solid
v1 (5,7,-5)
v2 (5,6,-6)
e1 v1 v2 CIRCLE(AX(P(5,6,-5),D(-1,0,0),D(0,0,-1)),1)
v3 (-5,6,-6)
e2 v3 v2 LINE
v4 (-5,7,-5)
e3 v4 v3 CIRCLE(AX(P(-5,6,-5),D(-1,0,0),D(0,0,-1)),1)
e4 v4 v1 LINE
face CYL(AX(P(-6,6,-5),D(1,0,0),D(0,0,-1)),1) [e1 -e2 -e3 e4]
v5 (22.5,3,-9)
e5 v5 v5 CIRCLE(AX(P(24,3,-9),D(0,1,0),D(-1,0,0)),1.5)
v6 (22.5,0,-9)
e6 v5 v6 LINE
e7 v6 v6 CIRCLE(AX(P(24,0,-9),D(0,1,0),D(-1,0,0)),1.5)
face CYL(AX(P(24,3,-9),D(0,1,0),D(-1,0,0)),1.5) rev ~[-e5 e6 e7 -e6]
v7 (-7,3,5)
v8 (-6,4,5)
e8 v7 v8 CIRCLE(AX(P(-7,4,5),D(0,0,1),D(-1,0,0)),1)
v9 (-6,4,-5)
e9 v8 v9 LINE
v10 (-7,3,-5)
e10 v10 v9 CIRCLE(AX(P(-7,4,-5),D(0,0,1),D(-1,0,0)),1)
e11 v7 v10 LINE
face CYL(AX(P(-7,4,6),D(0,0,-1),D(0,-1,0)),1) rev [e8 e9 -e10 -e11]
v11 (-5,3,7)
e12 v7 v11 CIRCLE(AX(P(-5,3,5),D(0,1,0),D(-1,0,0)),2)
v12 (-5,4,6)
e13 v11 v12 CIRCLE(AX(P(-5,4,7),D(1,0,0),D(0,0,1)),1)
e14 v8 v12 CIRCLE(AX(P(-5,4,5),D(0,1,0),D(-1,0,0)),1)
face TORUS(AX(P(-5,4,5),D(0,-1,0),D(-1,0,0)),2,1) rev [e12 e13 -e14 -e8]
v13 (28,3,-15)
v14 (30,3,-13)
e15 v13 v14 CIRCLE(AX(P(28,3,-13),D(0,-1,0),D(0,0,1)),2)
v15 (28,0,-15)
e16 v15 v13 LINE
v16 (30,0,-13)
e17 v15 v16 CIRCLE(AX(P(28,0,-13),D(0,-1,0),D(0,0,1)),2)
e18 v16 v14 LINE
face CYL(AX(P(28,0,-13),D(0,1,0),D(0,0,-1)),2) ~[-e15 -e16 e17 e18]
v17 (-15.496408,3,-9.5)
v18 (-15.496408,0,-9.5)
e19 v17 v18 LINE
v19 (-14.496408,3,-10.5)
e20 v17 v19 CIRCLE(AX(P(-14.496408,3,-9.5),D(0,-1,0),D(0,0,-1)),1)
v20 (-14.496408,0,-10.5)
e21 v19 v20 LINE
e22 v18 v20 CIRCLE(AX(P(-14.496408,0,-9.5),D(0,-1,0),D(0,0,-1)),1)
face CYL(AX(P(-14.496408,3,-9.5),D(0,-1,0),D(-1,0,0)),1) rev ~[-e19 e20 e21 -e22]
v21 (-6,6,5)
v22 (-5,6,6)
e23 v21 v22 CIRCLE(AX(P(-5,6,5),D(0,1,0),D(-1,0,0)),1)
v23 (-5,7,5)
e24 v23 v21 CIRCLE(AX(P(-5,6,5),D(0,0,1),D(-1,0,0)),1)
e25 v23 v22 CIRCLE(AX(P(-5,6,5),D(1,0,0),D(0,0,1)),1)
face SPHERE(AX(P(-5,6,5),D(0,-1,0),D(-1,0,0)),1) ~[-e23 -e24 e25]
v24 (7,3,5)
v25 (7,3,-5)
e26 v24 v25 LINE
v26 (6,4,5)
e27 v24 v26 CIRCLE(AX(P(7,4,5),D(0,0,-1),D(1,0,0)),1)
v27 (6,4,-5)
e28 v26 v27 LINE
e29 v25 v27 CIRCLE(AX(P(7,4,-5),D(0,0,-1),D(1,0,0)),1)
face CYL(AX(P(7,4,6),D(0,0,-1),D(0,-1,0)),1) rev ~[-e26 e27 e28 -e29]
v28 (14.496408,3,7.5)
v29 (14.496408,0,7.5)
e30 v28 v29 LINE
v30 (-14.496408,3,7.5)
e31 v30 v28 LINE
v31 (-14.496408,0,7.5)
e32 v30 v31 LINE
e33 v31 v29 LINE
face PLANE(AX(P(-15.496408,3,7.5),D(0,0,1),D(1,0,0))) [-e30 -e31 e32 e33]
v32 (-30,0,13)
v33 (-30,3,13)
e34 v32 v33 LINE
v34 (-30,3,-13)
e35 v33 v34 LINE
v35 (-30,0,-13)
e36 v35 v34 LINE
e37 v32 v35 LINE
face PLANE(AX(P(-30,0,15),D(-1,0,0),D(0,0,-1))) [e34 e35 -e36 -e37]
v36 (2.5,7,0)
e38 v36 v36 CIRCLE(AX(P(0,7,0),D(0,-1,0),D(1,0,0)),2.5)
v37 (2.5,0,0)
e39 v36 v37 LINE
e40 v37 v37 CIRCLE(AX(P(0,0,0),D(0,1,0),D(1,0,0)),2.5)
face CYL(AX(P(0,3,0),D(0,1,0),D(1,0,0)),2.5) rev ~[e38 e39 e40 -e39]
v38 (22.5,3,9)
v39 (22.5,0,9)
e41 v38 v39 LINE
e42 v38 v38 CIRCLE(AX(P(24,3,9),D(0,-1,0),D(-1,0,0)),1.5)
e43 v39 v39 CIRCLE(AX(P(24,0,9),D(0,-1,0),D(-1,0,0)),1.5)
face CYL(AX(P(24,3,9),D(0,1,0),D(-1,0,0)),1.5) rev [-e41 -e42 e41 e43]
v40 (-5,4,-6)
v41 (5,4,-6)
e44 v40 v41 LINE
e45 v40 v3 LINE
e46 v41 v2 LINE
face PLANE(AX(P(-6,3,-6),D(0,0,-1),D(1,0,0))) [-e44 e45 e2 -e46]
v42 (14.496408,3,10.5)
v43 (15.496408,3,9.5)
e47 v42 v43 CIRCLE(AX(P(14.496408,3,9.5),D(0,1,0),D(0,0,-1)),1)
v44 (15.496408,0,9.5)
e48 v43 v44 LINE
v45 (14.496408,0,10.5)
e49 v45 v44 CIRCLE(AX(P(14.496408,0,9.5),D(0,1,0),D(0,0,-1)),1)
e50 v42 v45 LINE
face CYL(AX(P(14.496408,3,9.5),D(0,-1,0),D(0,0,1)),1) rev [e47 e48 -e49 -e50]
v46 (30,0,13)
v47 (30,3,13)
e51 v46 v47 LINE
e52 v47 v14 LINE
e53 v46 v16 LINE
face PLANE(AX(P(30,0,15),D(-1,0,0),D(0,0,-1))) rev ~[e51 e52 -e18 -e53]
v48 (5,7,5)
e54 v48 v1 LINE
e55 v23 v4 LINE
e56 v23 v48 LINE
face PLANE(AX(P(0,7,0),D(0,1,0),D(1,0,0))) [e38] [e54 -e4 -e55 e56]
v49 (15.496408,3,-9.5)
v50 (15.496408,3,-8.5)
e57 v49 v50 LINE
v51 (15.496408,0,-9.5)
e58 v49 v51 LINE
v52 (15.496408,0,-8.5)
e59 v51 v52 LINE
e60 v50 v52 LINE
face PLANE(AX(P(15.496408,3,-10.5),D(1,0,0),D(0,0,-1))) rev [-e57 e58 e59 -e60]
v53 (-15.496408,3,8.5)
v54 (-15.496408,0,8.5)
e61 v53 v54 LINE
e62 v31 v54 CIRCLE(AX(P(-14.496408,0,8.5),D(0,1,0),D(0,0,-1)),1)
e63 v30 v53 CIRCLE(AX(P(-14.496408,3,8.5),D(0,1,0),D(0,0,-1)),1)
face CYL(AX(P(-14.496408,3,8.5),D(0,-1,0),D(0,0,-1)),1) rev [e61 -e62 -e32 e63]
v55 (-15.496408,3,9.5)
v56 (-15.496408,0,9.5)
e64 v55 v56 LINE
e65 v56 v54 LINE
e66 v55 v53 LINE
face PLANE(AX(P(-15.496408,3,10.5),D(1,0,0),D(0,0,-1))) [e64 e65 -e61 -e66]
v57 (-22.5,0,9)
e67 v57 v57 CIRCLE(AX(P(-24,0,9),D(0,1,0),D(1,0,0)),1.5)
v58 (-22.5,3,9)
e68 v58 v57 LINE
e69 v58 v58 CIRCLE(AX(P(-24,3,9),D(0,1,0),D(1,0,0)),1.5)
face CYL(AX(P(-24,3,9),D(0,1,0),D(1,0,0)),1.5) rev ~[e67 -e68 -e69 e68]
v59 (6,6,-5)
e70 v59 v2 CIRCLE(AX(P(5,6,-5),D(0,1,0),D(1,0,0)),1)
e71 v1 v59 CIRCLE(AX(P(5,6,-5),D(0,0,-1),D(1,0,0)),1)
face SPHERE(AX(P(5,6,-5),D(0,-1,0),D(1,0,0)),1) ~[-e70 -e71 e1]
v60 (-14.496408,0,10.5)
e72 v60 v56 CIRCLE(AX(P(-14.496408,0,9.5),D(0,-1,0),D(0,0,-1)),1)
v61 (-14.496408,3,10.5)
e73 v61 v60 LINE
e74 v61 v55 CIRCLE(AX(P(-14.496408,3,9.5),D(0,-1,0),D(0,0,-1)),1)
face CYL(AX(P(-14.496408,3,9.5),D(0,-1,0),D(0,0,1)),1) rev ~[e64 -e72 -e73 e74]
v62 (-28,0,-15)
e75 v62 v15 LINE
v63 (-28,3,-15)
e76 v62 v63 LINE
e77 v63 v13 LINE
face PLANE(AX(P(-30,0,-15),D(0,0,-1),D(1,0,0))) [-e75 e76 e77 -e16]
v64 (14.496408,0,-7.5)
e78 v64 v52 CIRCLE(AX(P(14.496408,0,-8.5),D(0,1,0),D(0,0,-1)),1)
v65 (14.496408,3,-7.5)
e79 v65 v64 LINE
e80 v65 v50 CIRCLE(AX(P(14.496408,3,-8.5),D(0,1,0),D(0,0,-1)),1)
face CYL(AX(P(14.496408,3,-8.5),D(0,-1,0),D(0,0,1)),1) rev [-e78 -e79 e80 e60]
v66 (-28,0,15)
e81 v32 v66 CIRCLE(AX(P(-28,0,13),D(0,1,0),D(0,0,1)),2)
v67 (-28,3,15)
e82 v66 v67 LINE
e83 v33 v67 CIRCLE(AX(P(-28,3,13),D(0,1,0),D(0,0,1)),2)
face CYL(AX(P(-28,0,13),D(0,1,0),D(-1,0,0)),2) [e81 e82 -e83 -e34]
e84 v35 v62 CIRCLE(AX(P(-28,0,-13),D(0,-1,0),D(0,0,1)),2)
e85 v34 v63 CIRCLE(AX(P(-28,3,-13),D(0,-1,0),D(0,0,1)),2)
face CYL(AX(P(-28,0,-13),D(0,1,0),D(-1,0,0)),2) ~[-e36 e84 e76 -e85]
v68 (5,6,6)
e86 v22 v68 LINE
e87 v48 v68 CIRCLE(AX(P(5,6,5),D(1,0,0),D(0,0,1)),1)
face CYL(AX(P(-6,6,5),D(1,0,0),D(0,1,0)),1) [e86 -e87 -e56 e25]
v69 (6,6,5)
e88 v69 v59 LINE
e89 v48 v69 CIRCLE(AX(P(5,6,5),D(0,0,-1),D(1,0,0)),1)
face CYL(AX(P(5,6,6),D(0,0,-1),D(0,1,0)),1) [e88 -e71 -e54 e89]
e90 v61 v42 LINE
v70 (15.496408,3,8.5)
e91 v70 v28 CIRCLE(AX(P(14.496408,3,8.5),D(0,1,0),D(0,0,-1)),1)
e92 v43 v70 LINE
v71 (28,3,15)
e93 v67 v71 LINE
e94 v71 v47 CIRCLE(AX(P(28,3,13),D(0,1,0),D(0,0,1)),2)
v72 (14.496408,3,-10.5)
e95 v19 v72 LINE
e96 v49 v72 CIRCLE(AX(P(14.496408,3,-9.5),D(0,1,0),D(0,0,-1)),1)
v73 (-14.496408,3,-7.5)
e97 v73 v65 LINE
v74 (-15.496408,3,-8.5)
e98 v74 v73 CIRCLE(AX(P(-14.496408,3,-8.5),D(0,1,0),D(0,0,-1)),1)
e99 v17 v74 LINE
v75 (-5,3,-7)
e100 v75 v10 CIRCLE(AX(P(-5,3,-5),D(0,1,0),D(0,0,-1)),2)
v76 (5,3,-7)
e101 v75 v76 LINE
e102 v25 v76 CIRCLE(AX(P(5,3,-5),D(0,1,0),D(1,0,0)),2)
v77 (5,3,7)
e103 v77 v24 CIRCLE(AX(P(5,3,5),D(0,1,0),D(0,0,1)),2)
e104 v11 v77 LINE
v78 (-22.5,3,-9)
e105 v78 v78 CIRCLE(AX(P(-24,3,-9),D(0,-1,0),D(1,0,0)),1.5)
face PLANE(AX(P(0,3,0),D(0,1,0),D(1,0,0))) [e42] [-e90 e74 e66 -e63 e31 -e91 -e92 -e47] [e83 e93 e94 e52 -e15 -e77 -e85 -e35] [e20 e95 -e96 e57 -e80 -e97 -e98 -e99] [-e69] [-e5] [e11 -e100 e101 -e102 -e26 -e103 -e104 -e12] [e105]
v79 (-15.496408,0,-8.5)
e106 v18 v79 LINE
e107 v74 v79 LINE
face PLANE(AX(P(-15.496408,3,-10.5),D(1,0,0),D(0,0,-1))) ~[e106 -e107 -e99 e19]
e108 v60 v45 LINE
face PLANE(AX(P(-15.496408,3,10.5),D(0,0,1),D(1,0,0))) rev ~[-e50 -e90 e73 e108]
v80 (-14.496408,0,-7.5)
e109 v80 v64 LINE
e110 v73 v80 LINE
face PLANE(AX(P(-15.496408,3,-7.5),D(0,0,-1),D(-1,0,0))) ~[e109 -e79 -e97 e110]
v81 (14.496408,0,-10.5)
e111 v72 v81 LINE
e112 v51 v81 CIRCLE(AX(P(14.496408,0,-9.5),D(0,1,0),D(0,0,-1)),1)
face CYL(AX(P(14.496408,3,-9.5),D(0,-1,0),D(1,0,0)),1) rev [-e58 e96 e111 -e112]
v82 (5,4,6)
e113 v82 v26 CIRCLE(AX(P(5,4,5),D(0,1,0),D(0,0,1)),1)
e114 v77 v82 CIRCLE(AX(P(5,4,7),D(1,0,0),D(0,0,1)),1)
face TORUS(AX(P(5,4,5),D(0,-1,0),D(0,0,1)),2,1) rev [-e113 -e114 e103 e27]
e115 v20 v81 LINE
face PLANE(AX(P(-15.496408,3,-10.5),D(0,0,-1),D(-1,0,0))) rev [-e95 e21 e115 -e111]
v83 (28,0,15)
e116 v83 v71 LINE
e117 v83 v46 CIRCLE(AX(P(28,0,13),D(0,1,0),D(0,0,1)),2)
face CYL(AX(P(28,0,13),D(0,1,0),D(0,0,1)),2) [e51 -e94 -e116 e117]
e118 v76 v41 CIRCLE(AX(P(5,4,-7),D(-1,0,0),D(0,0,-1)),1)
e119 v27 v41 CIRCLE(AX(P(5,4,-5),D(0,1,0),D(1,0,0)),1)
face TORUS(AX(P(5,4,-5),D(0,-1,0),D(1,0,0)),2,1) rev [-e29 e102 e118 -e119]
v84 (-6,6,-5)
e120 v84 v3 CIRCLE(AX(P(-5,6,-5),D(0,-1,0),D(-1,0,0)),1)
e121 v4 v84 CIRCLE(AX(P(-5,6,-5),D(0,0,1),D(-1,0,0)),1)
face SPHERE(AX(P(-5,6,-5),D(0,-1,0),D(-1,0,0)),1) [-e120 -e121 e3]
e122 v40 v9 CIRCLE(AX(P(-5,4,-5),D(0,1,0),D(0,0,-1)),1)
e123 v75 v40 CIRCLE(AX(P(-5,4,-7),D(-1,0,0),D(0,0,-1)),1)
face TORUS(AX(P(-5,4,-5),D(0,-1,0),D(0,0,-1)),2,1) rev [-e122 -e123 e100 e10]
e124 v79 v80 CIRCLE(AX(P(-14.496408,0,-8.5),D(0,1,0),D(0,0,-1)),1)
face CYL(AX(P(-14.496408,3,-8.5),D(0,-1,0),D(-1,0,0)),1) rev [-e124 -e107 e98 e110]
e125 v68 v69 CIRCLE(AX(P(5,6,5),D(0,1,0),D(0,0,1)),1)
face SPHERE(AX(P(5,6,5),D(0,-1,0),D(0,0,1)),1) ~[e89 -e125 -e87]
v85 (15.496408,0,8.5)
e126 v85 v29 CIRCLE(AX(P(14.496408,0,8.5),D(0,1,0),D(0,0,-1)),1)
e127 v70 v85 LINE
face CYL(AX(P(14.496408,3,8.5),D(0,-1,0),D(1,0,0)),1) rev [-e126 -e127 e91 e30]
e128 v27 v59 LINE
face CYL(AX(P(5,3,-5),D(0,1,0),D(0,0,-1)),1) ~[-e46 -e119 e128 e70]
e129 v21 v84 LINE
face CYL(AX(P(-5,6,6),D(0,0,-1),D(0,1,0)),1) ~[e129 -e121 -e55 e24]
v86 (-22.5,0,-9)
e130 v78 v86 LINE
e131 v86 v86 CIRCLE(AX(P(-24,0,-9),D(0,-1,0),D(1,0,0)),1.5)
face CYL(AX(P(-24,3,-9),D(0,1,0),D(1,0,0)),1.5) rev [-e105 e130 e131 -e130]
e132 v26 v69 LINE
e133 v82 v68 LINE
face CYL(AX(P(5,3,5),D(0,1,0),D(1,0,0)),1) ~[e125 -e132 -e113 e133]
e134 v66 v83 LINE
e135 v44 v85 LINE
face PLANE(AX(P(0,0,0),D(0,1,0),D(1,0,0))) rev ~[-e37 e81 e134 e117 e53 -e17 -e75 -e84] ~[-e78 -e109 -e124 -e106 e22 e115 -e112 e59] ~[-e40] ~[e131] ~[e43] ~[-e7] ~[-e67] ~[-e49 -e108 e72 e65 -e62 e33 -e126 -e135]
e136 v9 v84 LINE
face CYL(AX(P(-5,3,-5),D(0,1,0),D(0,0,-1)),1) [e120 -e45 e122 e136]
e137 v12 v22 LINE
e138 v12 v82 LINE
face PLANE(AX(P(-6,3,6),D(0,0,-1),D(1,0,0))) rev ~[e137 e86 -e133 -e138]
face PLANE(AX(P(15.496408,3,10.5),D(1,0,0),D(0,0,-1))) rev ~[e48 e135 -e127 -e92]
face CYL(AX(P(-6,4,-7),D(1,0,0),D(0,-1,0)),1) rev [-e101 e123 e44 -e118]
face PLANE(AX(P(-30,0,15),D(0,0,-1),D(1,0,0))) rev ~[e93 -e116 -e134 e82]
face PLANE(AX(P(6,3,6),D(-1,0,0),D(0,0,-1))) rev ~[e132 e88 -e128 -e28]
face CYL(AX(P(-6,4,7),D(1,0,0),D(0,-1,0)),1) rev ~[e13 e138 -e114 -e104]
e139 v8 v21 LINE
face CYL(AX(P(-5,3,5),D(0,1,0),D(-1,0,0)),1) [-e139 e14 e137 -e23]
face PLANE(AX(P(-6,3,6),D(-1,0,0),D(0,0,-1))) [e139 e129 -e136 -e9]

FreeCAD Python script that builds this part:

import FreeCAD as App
import Part
import Sketcher

V = App.Vector


def edges_at(feature, points):
    """Names of the edges that pass closest to the given points."""
    edges = feature.Shape.Edges
    near = lambda p: min(range(len(edges)), key=lambda i: edges[i].distToShape(Part.Vertex(*p))[0])
    return sorted({f"Edge{near(p) + 1}" for p in points})

doc = App.newDocument("Part")
params = doc.addObject("Spreadsheet::Sheet", "Params")
for row, (alias, value) in enumerate([
    ("sketch1_width", "60 mm"),
    ("sketch1_height", "30 mm"),
    ("pad1_length", "3 mm"),
    ("sketch2_diameter", "3 mm"),
    ("pocket1_length", "3 mm"),
    ("sketch3_width", "12 mm"),
    ("pad2_length", "4 mm"),
    ("sketch4_diameter", "3 mm"),
    ("pocket2_length", "3 mm"),
    ("sketch5_height", "3 mm"),
    ("pocket3_length", "3 mm"),
    ("fillet_radius", "1 mm"),
    ("fillet2_radius", "1 mm"),
    ("fillet3_radius", "2 mm"),
    ("sketch6_diameter", "5 mm"),
    ("fillet4_radius", "1 mm"),
], start=1):
    params.set(f"A{row}", alias)
    params.set(f"B{row}", "=" + value)
    params.setAlias(f"B{row}", alias)

body = doc.addObject("PartDesign::Body", "Body")

sketch1 = body.newObject("Sketcher::SketchObject", "Sketch")
sketch1.AttachmentSupport = (doc.getObject("XZ_Plane"), [""])
sketch1.MapMode = "FlatFace"
sketch1.addGeometry([
    Part.LineSegment(V(-30, -15, 0), V(-30, 15, 0)),
    Part.LineSegment(V(-30, 15, 0), V(30, 15, 0)),
    Part.LineSegment(V(30, 15, 0), V(30, -15, 0)),
    Part.LineSegment(V(30, -15, 0), V(-30, -15, 0)),
], False)
sketch1.addConstraint([
    Sketcher.Constraint("Coincident", 0, 2, 1, 1),
    Sketcher.Constraint("Coincident", 1, 2, 2, 1),
    Sketcher.Constraint("Coincident", 2, 2, 3, 1),
    Sketcher.Constraint("Coincident", 3, 2, 0, 1),
    Sketcher.Constraint("Vertical", 0),
    Sketcher.Constraint("Horizontal", 1),
    Sketcher.Constraint("Vertical", 2),
    Sketcher.Constraint("Horizontal", 3),
    Sketcher.Constraint("Symmetric", 0, 2, 2, 2, -1, 1),
    Sketcher.Constraint("DistanceX", 1, 1, 1, 2, 60.0),
    Sketcher.Constraint("DistanceY", 0, 1, 0, 2, 30.0),
])
sketch1.setExpression("Constraints[9]", "Params.sketch1_width")
sketch1.setExpression("Constraints[10]", "Params.sketch1_height")
pad1 = body.newObject("PartDesign::Pad", "Pad")
pad1.Profile = sketch1
pad1.setExpression("Length", "Params.pad1_length")
pad1.Reversed = True

sketch2 = body.newObject("Sketcher::SketchObject", "Sketch001")
sketch2.AttachmentSupport = (doc.getObject("XZ_Plane"), [""])
sketch2.MapMode = "FlatFace"
sketch2.AttachmentOffset = App.Placement(V(0, 0, -3), App.Rotation())
sketch2.addGeometry(Part.Circle(V(-24, 9, 0), V(0, 0, 1), 1.5), False)
sketch2.addConstraint([
    Sketcher.Constraint("Diameter", 0, 3.0),
    Sketcher.Constraint("DistanceX", 0, 3, -1, 1, 24.0),
    Sketcher.Constraint("DistanceY", -1, 1, 0, 3, 9.0),
])
sketch2.setExpression("Constraints[0]", "Params.sketch2_diameter")
pocket1 = body.newObject("PartDesign::Pocket", "Pocket")
pocket1.Profile = sketch2
pocket1.setExpression("Length", "Params.pocket1_length")
pocket1.Reversed = True

sketch3 = body.newObject("Sketcher::SketchObject", "Sketch002")
sketch3.AttachmentSupport = (doc.getObject("XZ_Plane"), [""])
sketch3.MapMode = "FlatFace"
sketch3.AttachmentOffset = App.Placement(V(0, 0, -3), App.Rotation())
sketch3.addGeometry([
    Part.LineSegment(V(-6, -6, 0), V(-6, 6, 0)),
    Part.LineSegment(V(-6, 6, 0), V(6, 6, 0)),
    Part.LineSegment(V(6, 6, 0), V(6, -6, 0)),
    Part.LineSegment(V(6, -6, 0), V(-6, -6, 0)),
], False)
sketch3.addConstraint([
    Sketcher.Constraint("Coincident", 0, 2, 1, 1),
    Sketcher.Constraint("Coincident", 1, 2, 2, 1),
    Sketcher.Constraint("Coincident", 2, 2, 3, 1),
    Sketcher.Constraint("Coincident", 3, 2, 0, 1),
    Sketcher.Constraint("Vertical", 0),
    Sketcher.Constraint("Horizontal", 1),
    Sketcher.Constraint("Vertical", 2),
    Sketcher.Constraint("Horizontal", 3),
    Sketcher.Constraint("Symmetric", 0, 2, 2, 2, -1, 1),
    Sketcher.Constraint("Equal", 3, 0),
    Sketcher.Constraint("DistanceX", 1, 1, 1, 2, 12.0),
])
sketch3.setExpression("Constraints[10]", "Params.sketch3_width")
pad2 = body.newObject("PartDesign::Pad", "Pad001")
pad2.Profile = sketch3
pad2.setExpression("Length", "Params.pad2_length")
pad2.Reversed = True
doc.recompute()

mirrored = body.newObject("PartDesign::Mirrored", "Mirrored")
mirrored.Originals = [pocket1]
mirrored.MirrorPlane = (doc.getObject("XY_Plane"), [""])
body.Tip = mirrored
doc.recompute()

mirrored2 = body.newObject("PartDesign::Mirrored", "Mirrored001")
mirrored2.Originals = [pocket1]
mirrored2.MirrorPlane = (doc.getObject("YZ_Plane"), [""])
body.Tip = mirrored2

sketch4 = body.newObject("Sketcher::SketchObject", "Sketch003")
sketch4.AttachmentSupport = (doc.getObject("XZ_Plane"), [""])
sketch4.MapMode = "FlatFace"
sketch4.AttachmentOffset = App.Placement(V(0, 0, -3), App.Rotation())
sketch4.addGeometry(Part.Circle(V(24, -9, 0), V(0, 0, 1), 1.5), False)
sketch4.addConstraint([
    Sketcher.Constraint("Diameter", 0, 3.0),
    Sketcher.Constraint("DistanceX", -1, 1, 0, 3, 24.0),
    Sketcher.Constraint("DistanceY", 0, 3, -1, 1, 9.0),
])
sketch4.setExpression("Constraints[0]", "Params.sketch4_diameter")
pocket2 = body.newObject("PartDesign::Pocket", "Pocket001")
pocket2.Profile = sketch4
pocket2.setExpression("Length", "Params.pocket2_length")
pocket2.Reversed = True

sketch5 = body.newObject("Sketcher::SketchObject", "Sketch004")
sketch5.AttachmentSupport = (doc.getObject("XZ_Plane"), [""])
sketch5.MapMode = "FlatFace"
sketch5.AttachmentOffset = App.Placement(V(0, 0, -3), App.Rotation())
sketch5.addGeometry([
    Part.LineSegment(V(-15.5, 7.5, 0), V(-15.5, 10.5, 0)),
    Part.LineSegment(V(-15.5, 10.5, 0), V(15.5, 10.5, 0)),
    Part.LineSegment(V(15.5, 10.5, 0), V(15.5, 7.5, 0)),
    Part.LineSegment(V(15.5, 7.5, 0), V(-15.5, 7.5, 0)),
], False)
sketch5.addConstraint([
    Sketcher.Constraint("Coincident", 0, 2, 1, 1),
    Sketcher.Constraint("Coincident", 1, 2, 2, 1),
    Sketcher.Constraint("Coincident", 2, 2, 3, 1),
    Sketcher.Constraint("Coincident", 3, 2, 0, 1),
    Sketcher.Constraint("Vertical", 0),
    Sketcher.Constraint("Horizontal", 1),
    Sketcher.Constraint("Vertical", 2),
    Sketcher.Constraint("Horizontal", 3),
    Sketcher.Constraint("DistanceY", 0, 1, 0, 2, 3.0),
    Sketcher.Constraint("DistanceY", -1, 1, 0, 2, 10.5),
    Sketcher.Constraint("DistanceX", 1, 1, 1, 2, 30.992816),
    Sketcher.Constraint("DistanceX", 0, 2, -1, 1, 15.496408),
])
sketch5.setExpression("Constraints[8]", "Params.sketch5_height")
pocket3 = body.newObject("PartDesign::Pocket", "Pocket002")
pocket3.Profile = sketch5
pocket3.setExpression("Length", "Params.pocket3_length")
pocket3.Reversed = True
doc.recompute()

fillet = body.newObject("PartDesign::Fillet", "Fillet")
fillet.Base = (pocket3, edges_at(pocket3, [
    (-15.496, 1.5, 10.5),
    (-15.496, 1.5, 7.5),
    (15.496, 1.5, 7.5),
    (15.496, 1.5, 10.5),
]))
fillet.setExpression("Radius", "Params.fillet_radius")
doc.recompute()

mirrored3 = body.newObject("PartDesign::Mirrored", "Mirrored002")
mirrored3.Originals = [pocket3]
mirrored3.MirrorPlane = (doc.getObject("XY_Plane"), [""])
body.Tip = mirrored3
doc.recompute()

fillet2 = body.newObject("PartDesign::Fillet", "Fillet001")
fillet2.Base = (mirrored3, edges_at(mirrored3, [
    (-15.496, 1.5, -10.5),
    (-15.496, 1.5, -7.5),
    (15.496, 1.5, -7.5),
    (15.496, 1.5, -10.5),
]))
fillet2.setExpression("Radius", "Params.fillet2_radius")
doc.recompute()

fillet3 = body.newObject("PartDesign::Fillet", "Fillet002")
fillet3.Base = (fillet2, edges_at(fillet2, [
    (-30, 1.5, -15),
    (30, 1.5, -15),
    (30, 1.5, 15),
    (-30, 1.5, 15),
]))
fillet3.setExpression("Radius", "Params.fillet3_radius")

sketch6 = body.newObject("Sketcher::SketchObject", "Sketch005")
sketch6.AttachmentSupport = (doc.getObject("XZ_Plane"), [""])
sketch6.MapMode = "FlatFace"
sketch6.AttachmentOffset = App.Placement(V(0, 0, -3), App.Rotation())
sketch6.addGeometry(Part.Circle(V(0, 0, 0), V(0, 0, 1), 2.5), False)
sketch6.addConstraint([
    Sketcher.Constraint("Coincident", 0, 3, -1, 1),
    Sketcher.Constraint("Diameter", 0, 5.0),
])
sketch6.setExpression("Constraints[1]", "Params.sketch6_diameter")
pocket4 = body.newObject("PartDesign::Pocket", "Pocket003")
pocket4.Profile = sketch6
pocket4.Type = "ThroughAll"
pocket4.Midplane = True
doc.recompute()

fillet4 = body.newObject("PartDesign::Fillet", "Fillet003")
fillet4.Base = (pocket4, edges_at(pocket4, [
    (-6, 3, 0),
    (-6, 5, -6),
    (0, 3, 6),
    (-6, 5, 6),
    (6, 3, 0),
    (6, 5, 6),
    (0, 3, -6),
    (6, 5, -6),
    (-6, 7, 0),
    (0, 7, 6),
    (6, 7, 0),
    (0, 7, -6),
]))
fillet4.setExpression("Radius", "Params.fillet4_radius")

doc.recompute()
